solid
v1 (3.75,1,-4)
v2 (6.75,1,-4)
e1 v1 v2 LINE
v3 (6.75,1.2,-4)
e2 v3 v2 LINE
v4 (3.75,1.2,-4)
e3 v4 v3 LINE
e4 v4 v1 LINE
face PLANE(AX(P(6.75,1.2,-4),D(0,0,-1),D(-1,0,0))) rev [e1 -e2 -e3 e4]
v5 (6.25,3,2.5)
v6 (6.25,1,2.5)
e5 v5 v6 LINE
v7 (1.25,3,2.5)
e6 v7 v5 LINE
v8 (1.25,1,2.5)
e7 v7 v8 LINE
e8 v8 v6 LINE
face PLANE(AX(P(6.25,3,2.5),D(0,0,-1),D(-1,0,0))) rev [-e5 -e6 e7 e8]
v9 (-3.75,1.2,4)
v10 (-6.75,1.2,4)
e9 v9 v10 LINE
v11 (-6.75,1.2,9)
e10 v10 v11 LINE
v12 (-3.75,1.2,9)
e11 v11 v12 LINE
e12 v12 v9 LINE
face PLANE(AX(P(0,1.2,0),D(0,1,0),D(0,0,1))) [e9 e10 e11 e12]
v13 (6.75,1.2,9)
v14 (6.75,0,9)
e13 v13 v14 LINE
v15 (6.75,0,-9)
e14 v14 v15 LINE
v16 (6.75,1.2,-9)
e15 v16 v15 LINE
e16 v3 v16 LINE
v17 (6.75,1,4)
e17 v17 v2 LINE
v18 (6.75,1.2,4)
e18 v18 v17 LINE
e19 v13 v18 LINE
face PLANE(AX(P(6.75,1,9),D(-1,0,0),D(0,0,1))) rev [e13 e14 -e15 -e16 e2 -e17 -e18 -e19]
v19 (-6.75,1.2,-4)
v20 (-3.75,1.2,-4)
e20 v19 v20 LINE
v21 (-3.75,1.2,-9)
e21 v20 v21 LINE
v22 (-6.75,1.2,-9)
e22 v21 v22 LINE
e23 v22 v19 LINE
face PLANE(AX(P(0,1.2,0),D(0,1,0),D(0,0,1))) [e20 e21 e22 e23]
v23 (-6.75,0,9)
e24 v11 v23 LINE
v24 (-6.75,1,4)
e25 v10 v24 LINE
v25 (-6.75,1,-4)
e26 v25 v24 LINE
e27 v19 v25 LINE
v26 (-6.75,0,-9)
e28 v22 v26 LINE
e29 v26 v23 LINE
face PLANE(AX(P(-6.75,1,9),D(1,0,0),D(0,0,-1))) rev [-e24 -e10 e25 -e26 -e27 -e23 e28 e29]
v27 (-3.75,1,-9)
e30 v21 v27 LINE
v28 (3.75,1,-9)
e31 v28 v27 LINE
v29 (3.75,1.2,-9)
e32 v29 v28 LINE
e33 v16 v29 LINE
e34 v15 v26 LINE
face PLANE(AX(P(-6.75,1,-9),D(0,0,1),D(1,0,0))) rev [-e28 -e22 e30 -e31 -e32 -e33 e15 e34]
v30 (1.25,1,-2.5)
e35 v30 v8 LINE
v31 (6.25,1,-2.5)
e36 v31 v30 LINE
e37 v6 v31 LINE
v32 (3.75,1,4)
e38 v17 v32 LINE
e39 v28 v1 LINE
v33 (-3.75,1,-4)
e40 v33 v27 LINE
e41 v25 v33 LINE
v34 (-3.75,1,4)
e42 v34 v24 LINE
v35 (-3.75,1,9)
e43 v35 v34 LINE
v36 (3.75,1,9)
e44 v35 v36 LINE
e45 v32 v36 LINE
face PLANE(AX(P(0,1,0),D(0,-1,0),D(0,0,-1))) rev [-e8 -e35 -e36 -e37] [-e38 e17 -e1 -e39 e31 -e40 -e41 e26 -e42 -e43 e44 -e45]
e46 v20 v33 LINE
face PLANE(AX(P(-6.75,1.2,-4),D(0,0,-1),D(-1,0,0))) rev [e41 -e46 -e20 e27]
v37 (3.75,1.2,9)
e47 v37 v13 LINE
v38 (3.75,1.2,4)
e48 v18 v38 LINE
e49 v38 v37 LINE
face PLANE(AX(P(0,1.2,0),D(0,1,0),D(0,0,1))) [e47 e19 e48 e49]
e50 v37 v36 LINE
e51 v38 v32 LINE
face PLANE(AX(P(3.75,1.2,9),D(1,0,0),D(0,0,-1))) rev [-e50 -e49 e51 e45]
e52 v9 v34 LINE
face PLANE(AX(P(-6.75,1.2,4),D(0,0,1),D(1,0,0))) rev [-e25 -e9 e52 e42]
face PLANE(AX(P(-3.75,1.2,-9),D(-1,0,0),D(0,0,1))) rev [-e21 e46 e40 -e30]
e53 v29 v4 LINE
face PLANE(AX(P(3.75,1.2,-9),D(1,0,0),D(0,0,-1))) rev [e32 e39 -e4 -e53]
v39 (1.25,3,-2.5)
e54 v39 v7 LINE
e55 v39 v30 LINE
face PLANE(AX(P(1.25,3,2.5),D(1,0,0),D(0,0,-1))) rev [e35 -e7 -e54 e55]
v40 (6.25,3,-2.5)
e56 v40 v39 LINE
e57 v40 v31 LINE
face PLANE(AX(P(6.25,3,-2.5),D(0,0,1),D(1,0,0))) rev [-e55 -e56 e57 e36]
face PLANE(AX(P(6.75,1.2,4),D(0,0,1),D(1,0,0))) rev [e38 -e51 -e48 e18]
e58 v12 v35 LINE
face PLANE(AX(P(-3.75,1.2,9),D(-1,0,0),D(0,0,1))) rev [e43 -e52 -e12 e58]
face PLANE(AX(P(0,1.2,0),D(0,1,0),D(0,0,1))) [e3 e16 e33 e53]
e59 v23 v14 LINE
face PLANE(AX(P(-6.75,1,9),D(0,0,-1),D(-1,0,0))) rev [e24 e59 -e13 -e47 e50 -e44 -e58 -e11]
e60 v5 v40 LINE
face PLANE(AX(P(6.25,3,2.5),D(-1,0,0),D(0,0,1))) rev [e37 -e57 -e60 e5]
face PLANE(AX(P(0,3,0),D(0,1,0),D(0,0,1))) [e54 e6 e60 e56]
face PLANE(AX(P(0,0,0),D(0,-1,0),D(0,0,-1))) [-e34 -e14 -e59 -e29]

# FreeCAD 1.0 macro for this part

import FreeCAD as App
import Part
import Sketcher

doc = App.newDocument("Part")
params = doc.addObject("Spreadsheet::Sheet", "Params")
for row, (alias, value) in enumerate([
    ("sketch1_height", "18 mm"),
    ("sketch1_width", "13.5 mm"),
    ("pad1_length", "1 mm"),
    ("sketch2_width", "3 mm"),
    ("sketch2_height", "5 mm"),
    ("pad2_length", "0.2 mm"),
    ("sketch3_width", "5 mm"),
    ("pad3_length", "2 mm"),
], start=1):
    params.set(f"A{row}", alias)
    params.set(f"B{row}", "=" + value)
    params.setAlias(f"B{row}", alias)

body = doc.addObject("PartDesign::Body", "Body")

# Sketch on XZ plane
sketch1 = body.newObject("Sketcher::SketchObject", "Sketch")
sketch1.AttachmentSupport = (doc.getObject("XZ_Plane"), [""])
sketch1.MapMode = "FlatFace"
sketch1.addGeometry([
    Part.LineSegment(App.Vector(-7, -9, 0), App.Vector(-7, 9, 0)),
    Part.LineSegment(App.Vector(-7, 9, 0), App.Vector(7, 9, 0)),
    Part.LineSegment(App.Vector(7, 9, 0), App.Vector(7, -9, 0)),
    Part.LineSegment(App.Vector(7, -9, 0), App.Vector(-7, -9, 0)),
], False)
sketch1.addConstraint([
    Sketcher.Constraint("Coincident", 0, 2, 1, 1),
    Sketcher.Constraint("Coincident", 1, 2, 2, 1),
    Sketcher.Constraint("Coincident", 2, 2, 3, 1),
    Sketcher.Constraint("Coincident", 3, 2, 0, 1),
    Sketcher.Constraint("Vertical", 0),
    Sketcher.Constraint("Horizontal", 1),
    Sketcher.Constraint("Vertical", 2),
    Sketcher.Constraint("Horizontal", 3),
    Sketcher.Constraint("Symmetric", 0, 2, 2, 2, -1, 1),
    Sketcher.Constraint("DistanceY", 0, 1, 0, 2, 18.0),
    Sketcher.Constraint("DistanceX", 1, 1, 1, 2, 13.5),
])
sketch1.setExpression("Constraints[9]", "Params.sketch1_height")
sketch1.setExpression("Constraints[10]", "Params.sketch1_width")
pad1 = body.newObject("PartDesign::Pad", "Pad")
pad1.Profile = sketch1
pad1.setExpression("Length", "Params.pad1_length")
pad1.Reversed = True

# Sketch on XZ plane
sketch2 = body.newObject("Sketcher::SketchObject", "Sketch001")
sketch2.AttachmentSupport = (doc.getObject("XZ_Plane"), [""])
sketch2.MapMode = "FlatFace"
sketch2.AttachmentOffset = App.Placement(App.Vector(0, 0, -1), App.Rotation())
sketch2.addGeometry([
    Part.LineSegment(App.Vector(-6.8, 4, 0), App.Vector(-6.8, 9, 0)),  # 0
    Part.LineSegment(App.Vector(-6.8, 9, 0), App.Vector(-3.8, 9, 0)),  # 1
    Part.LineSegment(App.Vector(-3.8, 9, 0), App.Vector(-3.8, 4, 0)),  # 2
    Part.LineSegment(App.Vector(-3.8, 4, 0), App.Vector(-6.8, 4, 0)),  # 3
    Part.LineSegment(App.Vector(3.8, 4, 0), App.Vector(3.8, 9, 0)),  # 4
    Part.LineSegment(App.Vector(3.8, 9, 0), App.Vector(6.8, 9, 0)),  # 5
    Part.LineSegment(App.Vector(6.8, 9, 0), App.Vector(6.8, 4, 0)),  # 6
    Part.LineSegment(App.Vector(6.8, 4, 0), App.Vector(3.8, 4, 0)),  # 7
    Part.LineSegment(App.Vector(-6.8, -9, 0), App.Vector(-6.8, -4, 0)),  # 8
    Part.LineSegment(App.Vector(-6.8, -4, 0), App.Vector(-3.8, -4, 0)),  # 9
    Part.LineSegment(App.Vector(-3.8, -4, 0), App.Vector(-3.8, -9, 0)),  # 10
    Part.LineSegment(App.Vector(-3.8, -9, 0), App.Vector(-6.8, -9, 0)),  # 11
    Part.LineSegment(App.Vector(3.8, -9, 0), App.Vector(3.8, -4, 0)),  # 12
    Part.LineSegment(App.Vector(3.8, -4, 0), App.Vector(6.8, -4, 0)),  # 13
    Part.LineSegment(App.Vector(6.8, -4, 0), App.Vector(6.8, -9, 0)),  # 14
    Part.LineSegment(App.Vector(6.8, -9, 0), App.Vector(3.8, -9, 0)),  # 15
], False)
sketch2.addConstraint([
    Sketcher.Constraint("Coincident", 0, 2, 1, 1),
    Sketcher.Constraint("Coincident", 1, 2, 2, 1),
    Sketcher.Constraint("Coincident", 2, 2, 3, 1),
    Sketcher.Constraint("Coincident", 3, 2, 0, 1),
    Sketcher.Constraint("Coincident", 4, 2, 5, 1),
    Sketcher.Constraint("Coincident", 5, 2, 6, 1),
    Sketcher.Constraint("Coincident", 6, 2, 7, 1),
    Sketcher.Constraint("Coincident", 7, 2, 4, 1),
    Sketcher.Constraint("Coincident", 8, 2, 9, 1),
    Sketcher.Constraint("Coincident", 9, 2, 10, 1),
    Sketcher.Constraint("Coincident", 10, 2, 11, 1),
    Sketcher.Constraint("Coincident", 11, 2, 8, 1),
    Sketcher.Constraint("Coincident", 12, 2, 13, 1),
    Sketcher.Constraint("Coincident", 13, 2, 14, 1),
    Sketcher.Constraint("Coincident", 14, 2, 15, 1),
    Sketcher.Constraint("Coincident", 15, 2, 12, 1),
    Sketcher.Constraint("Vertical", 0),
    Sketcher.Constraint("Horizontal", 1),
    Sketcher.Constraint("Vertical", 2),
    Sketcher.Constraint("Horizontal", 3),
    Sketcher.Constraint("Vertical", 4),
    Sketcher.Constraint("Horizontal", 5),
    Sketcher.Constraint("Vertical", 6),
    Sketcher.Constraint("Horizontal", 7),
    Sketcher.Constraint("Vertical", 8),
    Sketcher.Constraint("Horizontal", 9),
    Sketcher.Constraint("Vertical", 10),
    Sketcher.Constraint("Horizontal", 11),
    Sketcher.Constraint("Vertical", 12),
    Sketcher.Constraint("Horizontal", 13),
    Sketcher.Constraint("Vertical", 14),
    Sketcher.Constraint("Horizontal", 15),
    Sketcher.Constraint("Symmetric", 6, 2, 8, 2, -1, 1),
    Sketcher.Constraint("Symmetric", 4, 2, 10, 2, -1, 1),
    Sketcher.Constraint("Symmetric", 2, 2, 12, 2, -1, 1),
    Sketcher.Constraint("Symmetric", 0, 2, 14, 2, -1, 1),
    Sketcher.Constraint("Symmetric", 1, 2, 4, 2, -2),
    Sketcher.Constraint("Symmetric", 3, 2, 6, 2, -2),
    Sketcher.Constraint("DistanceX", 1, 1, 1, 2, 3.0),
    Sketcher.Constraint("DistanceY", 0, 1, 0, 2, 5.0),
    Sketcher.Constraint("DistanceY", -1, 1, 0, 2, 9.0),
    Sketcher.Constraint("DistanceX", 1, 2, 4, 2, 7.5),
])
sketch2.setExpression("Constraints[38]", "Params.sketch2_width")
sketch2.setExpression("Constraints[39]", "Params.sketch2_height")
pad2 = body.newObject("PartDesign::Pad", "Pad001")
pad2.Profile = sketch2
pad2.setExpression("Length", "Params.pad2_length")
pad2.Reversed = True

# Sketch on XZ plane
sketch3 = body.newObject("Sketcher::SketchObject", "Sketch002")
sketch3.AttachmentSupport = (doc.getObject("XZ_Plane"), [""])
sketch3.MapMode = "FlatFace"
sketch3.AttachmentOffset = App.Placement(App.Vector(0, 0, -1), App.Rotation())
sketch3.addGeometry([
    Part.LineSegment(App.Vector(1, -2, 0), App.Vector(1, 2, 0)),
    Part.LineSegment(App.Vector(1, 2, 0), App.Vector(6, 2, 0)),
    Part.LineSegment(App.Vector(6, 2, 0), App.Vector(6, -2, 0)),
    Part.LineSegment(App.Vector(6, -2, 0), App.Vector(1, -2, 0)),
], False)
sketch3.addConstraint([
    Sketcher.Constraint("Coincident", 0, 2, 1, 1),
    Sketcher.Constraint("Coincident", 1, 2, 2, 1),
    Sketcher.Constraint("Coincident", 2, 2, 3, 1),
    Sketcher.Constraint("Coincident", 3, 2, 0, 1),
    Sketcher.Constraint("Vertical", 0),
    Sketcher.Constraint("Horizontal", 1),
    Sketcher.Constraint("Vertical", 2),
    Sketcher.Constraint("Horizontal", 3),
    Sketcher.Constraint("Equal", 3, 0),
    Sketcher.Constraint("DistanceX", 1, 1, 1, 2, 5.0),
    Sketcher.Constraint("DistanceY", -1, 1, 0, 2, 2.5),
    Sketcher.Constraint("DistanceX", -1, 1, 0, 2, 1.25),
])
sketch3.setExpression("Constraints[9]", "Params.sketch3_width")
pad3 = body.newObject("PartDesign::Pad", "Pad002")
pad3.Profile = sketch3
pad3.setExpression("Length", "Params.pad3_length")
pad3.Reversed = True

doc.recompute()
